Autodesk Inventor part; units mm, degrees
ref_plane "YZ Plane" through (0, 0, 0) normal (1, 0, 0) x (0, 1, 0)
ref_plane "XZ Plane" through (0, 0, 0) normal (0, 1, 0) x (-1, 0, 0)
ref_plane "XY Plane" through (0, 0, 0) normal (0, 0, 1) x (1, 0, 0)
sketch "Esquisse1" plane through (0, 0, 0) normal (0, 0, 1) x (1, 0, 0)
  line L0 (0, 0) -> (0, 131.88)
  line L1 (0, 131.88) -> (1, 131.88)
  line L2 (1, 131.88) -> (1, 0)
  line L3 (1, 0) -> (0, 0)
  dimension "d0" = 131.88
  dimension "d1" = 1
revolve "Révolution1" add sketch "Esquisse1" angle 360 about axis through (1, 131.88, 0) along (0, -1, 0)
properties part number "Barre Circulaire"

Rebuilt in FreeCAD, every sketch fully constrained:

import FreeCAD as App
import Part
import Sketcher
Q = App.Units.Quantity


def add_polygon(sketch, points):
    """Adds a closed chain of lines whose ends are joined by coincident constraints."""
    first, n = sketch.GeometryCount, len(points)
    for a, b in zip(points, points[1:] + points[:1]):
        sketch.addGeometry(Part.LineSegment(App.Vector(*a, 0), App.Vector(*b, 0)), False)
    for i in range(n):
        sketch.addConstraint(Sketcher.Constraint("Coincident", first + i, 2, first + (i + 1) % n, 1))

doc = App.newDocument("Part")
body = doc.addObject("PartDesign::Body", "Body")

# Sketch on XY plane
sketch1 = body.newObject("Sketcher::SketchObject", "Sketch")
sketch1.AttachmentSupport = (doc.getObject("XY_Plane"), [""])
sketch1.MapMode = "FlatFace"
add_polygon(sketch1, [(0, 131.9), (0, 0), (1, 0), (1, 131.9)])  # lines 0-3
sketch1.addGeometry(Part.LineSegment(App.Vector(1, 131.9, 0), App.Vector(1, 0, 0)), True)  # axis
sketch1.addConstraint([
    Sketcher.Constraint("Vertical", 0),
    Sketcher.Constraint("Horizontal", 1),
    Sketcher.Constraint("Vertical", 2),
    Sketcher.Constraint("Horizontal", 3),
    Sketcher.Constraint("Vertical", 4),
    Sketcher.Constraint("Coincident", 0, 2, -1, 1),
    Sketcher.Constraint("Coincident", 4, 1, 2, 2),
    Sketcher.Constraint("PointOnObject", 4, 2, -1),
    Sketcher.Constraint("DistanceX", 1, 1, 1, 2, Q("1 mm")),
    Sketcher.Constraint("DistanceY", 0, 2, 0, 1, Q("131.88 mm")),
])
revolution = body.newObject("PartDesign::Revolution", "Revolution")
revolution.Profile = sketch1
revolution.ReferenceAxis = (sketch1, ["Axis0"])
revolution.Angle = 360

doc.recompute()
